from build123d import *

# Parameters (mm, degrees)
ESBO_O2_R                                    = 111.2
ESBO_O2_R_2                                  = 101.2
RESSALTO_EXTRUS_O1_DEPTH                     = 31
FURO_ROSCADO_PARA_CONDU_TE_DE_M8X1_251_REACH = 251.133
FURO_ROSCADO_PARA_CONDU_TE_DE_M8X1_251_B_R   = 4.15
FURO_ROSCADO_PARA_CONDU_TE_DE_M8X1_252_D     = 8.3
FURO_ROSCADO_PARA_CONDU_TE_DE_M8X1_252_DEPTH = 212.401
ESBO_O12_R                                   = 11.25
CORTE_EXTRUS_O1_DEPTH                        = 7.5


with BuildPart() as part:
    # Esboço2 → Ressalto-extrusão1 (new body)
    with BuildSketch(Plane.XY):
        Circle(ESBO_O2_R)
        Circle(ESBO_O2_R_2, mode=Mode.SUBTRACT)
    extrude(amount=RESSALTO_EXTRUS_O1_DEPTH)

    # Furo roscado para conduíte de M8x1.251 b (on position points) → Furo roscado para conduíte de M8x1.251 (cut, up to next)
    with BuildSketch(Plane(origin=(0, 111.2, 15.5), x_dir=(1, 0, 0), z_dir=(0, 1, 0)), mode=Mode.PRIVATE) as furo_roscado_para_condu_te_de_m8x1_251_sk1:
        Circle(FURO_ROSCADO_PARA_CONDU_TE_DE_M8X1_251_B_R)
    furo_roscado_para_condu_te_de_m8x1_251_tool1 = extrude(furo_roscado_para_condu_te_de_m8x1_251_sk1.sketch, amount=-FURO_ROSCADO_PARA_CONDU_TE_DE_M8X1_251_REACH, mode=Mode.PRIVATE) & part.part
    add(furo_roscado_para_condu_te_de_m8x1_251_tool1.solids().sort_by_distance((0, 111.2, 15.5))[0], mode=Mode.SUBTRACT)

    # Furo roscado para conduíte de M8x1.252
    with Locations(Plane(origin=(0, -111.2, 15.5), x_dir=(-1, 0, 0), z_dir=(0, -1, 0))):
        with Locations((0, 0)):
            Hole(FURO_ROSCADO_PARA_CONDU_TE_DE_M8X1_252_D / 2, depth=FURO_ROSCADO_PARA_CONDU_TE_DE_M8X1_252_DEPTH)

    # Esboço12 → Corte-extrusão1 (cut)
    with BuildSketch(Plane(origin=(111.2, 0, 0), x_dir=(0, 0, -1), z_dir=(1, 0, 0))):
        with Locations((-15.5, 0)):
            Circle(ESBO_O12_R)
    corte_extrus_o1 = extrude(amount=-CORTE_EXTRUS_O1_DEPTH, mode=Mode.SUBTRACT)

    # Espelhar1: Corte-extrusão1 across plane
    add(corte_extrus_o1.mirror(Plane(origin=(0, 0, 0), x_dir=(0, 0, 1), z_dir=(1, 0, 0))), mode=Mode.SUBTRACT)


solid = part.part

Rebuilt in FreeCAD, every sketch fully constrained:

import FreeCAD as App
import Part
import Sketcher
Q = App.Units.Quantity

doc = App.newDocument("Part")
params = doc.addObject("Spreadsheet::Sheet", "Params")
for row, (alias, value) in enumerate([
    ("sketch1_diameter", "222.4 mm"),
    ("sketch1_diameter2", "202.4 mm"),
    ("pad1_length", "31 mm"),
    ("sketch2_diameter", "8.3 mm"),
    ("sketch3_diameter", "8.3 mm"),
    ("hole_diameter", "8.3 mm"),
    ("hole_depth", "212.401 mm"),
    ("sketch4_diameter", "22.5 mm"),
    ("pocket2_length", "7.5 mm"),
], start=1):
    params.set(f"A{row}", alias)
    params.set(f"B{row}", "=" + value)
    params.setAlias(f"B{row}", alias)

body = doc.addObject("PartDesign::Body", "Body")

# Sketch on XY plane
sketch1 = body.newObject("Sketcher::SketchObject", "Sketch")
sketch1.AttachmentSupport = (doc.getObject("XY_Plane"), [""])
sketch1.MapMode = "FlatFace"
sketch1.addGeometry([
    Part.Circle(App.Vector(0, 0, 0), App.Vector(0, 0, 1), 111.2),
    Part.Circle(App.Vector(0, 0, 0), App.Vector(0, 0, 1), 101.2),
], False)
sketch1.addConstraint([
    Sketcher.Constraint("Coincident", 0, 3, -1, 1),
    Sketcher.Constraint("Coincident", 1, 3, -1, 1),
    Sketcher.Constraint("Diameter", 0, Q("222.4 mm")),
    Sketcher.Constraint("Diameter", 1, Q("202.4 mm")),
])
sketch1.setExpression("Constraints[2]", "Params.sketch1_diameter")
sketch1.setExpression("Constraints[3]", "Params.sketch1_diameter2")
pad1 = body.newObject("PartDesign::Pad", "Pad")
pad1.Profile = sketch1
pad1.setExpression("Length", "Params.pad1_length")

# Sketch on XZ plane
sketch2 = body.newObject("Sketcher::SketchObject", "Sketch001")
sketch2.AttachmentSupport = (doc.getObject("XZ_Plane"), [""])
sketch2.MapMode = "FlatFace"
sketch2.AttachmentOffset = App.Placement(App.Vector(0, 0, -111.2), App.Rotation())
sketch2.addGeometry(Part.Circle(App.Vector(0, 15.5, 0), App.Vector(0, 0, 1), 4.15), False)
sketch2.addConstraint([
    Sketcher.Constraint("PointOnObject", 0, 3, -2),
    Sketcher.Constraint("Diameter", 0, Q("8.3 mm")),
    Sketcher.Constraint("DistanceY", -1, 1, 0, 3, Q("15.5 mm")),
])
sketch2.setExpression("Constraints[1]", "Params.sketch2_diameter")
pocket1 = body.newObject("PartDesign::Pocket", "Pocket")
pocket1.Profile = sketch2
pocket1.Type = "UpToFirst"
pocket1.Reversed = True

# Sketch on XZ plane
sketch3 = body.newObject("Sketcher::SketchObject", "Sketch002")
sketch3.AttachmentSupport = (doc.getObject("XZ_Plane"), [""])
sketch3.MapMode = "FlatFace"
sketch3.AttachmentOffset = App.Placement(App.Vector(0, 0, 111.2), App.Rotation())
sketch3.addGeometry(Part.Circle(App.Vector(0, 15.5, 0), App.Vector(0, 0, 1), 4.15), False)
sketch3.addConstraint([
    Sketcher.Constraint("PointOnObject", 0, 3, -2),
    Sketcher.Constraint("Diameter", 0, Q("8.3 mm")),
    Sketcher.Constraint("DistanceY", -1, 1, 0, 3, Q("15.5 mm")),
])
sketch3.setExpression("Constraints[1]", "Params.sketch3_diameter")
doc.recompute()
hole = body.newObject("PartDesign::Hole", "Hole")
hole.Profile = sketch3
hole.ThreadType = "None"
hole.setExpression("Diameter", "Params.hole_diameter")
hole.DepthType = "Dimension"
hole.setExpression("Depth", "Params.hole_depth")
hole.DrillPoint = "Flat"

# Sketch on YZ plane
sketch4 = body.newObject("Sketcher::SketchObject", "Sketch003")
sketch4.AttachmentSupport = (doc.getObject("YZ_Plane"), [""])
sketch4.MapMode = "FlatFace"
sketch4.AttachmentOffset = App.Placement(App.Vector(0, 0, 111.2), App.Rotation())
sketch4.addGeometry(Part.Circle(App.Vector(0, 15.5, 0), App.Vector(0, 0, 1), 11.25), False)
sketch4.addConstraint([
    Sketcher.Constraint("PointOnObject", 0, 3, -2),
    Sketcher.Constraint("Diameter", 0, Q("22.5 mm")),
    Sketcher.Constraint("DistanceY", -1, 1, 0, 3, Q("15.5 mm")),
])
sketch4.setExpression("Constraints[1]", "Params.sketch4_diameter")
pocket2 = body.newObject("PartDesign::Pocket", "Pocket001")
pocket2.Profile = sketch4
pocket2.setExpression("Length", "Params.pocket2_length")
doc.recompute()

mirrored = body.newObject("PartDesign::Mirrored", "Mirrored")
mirrored.Originals = [pocket2]
mirrored.MirrorPlane = (doc.getObject("YZ_Plane"), [""])
body.Tip = mirrored

doc.recompute()
